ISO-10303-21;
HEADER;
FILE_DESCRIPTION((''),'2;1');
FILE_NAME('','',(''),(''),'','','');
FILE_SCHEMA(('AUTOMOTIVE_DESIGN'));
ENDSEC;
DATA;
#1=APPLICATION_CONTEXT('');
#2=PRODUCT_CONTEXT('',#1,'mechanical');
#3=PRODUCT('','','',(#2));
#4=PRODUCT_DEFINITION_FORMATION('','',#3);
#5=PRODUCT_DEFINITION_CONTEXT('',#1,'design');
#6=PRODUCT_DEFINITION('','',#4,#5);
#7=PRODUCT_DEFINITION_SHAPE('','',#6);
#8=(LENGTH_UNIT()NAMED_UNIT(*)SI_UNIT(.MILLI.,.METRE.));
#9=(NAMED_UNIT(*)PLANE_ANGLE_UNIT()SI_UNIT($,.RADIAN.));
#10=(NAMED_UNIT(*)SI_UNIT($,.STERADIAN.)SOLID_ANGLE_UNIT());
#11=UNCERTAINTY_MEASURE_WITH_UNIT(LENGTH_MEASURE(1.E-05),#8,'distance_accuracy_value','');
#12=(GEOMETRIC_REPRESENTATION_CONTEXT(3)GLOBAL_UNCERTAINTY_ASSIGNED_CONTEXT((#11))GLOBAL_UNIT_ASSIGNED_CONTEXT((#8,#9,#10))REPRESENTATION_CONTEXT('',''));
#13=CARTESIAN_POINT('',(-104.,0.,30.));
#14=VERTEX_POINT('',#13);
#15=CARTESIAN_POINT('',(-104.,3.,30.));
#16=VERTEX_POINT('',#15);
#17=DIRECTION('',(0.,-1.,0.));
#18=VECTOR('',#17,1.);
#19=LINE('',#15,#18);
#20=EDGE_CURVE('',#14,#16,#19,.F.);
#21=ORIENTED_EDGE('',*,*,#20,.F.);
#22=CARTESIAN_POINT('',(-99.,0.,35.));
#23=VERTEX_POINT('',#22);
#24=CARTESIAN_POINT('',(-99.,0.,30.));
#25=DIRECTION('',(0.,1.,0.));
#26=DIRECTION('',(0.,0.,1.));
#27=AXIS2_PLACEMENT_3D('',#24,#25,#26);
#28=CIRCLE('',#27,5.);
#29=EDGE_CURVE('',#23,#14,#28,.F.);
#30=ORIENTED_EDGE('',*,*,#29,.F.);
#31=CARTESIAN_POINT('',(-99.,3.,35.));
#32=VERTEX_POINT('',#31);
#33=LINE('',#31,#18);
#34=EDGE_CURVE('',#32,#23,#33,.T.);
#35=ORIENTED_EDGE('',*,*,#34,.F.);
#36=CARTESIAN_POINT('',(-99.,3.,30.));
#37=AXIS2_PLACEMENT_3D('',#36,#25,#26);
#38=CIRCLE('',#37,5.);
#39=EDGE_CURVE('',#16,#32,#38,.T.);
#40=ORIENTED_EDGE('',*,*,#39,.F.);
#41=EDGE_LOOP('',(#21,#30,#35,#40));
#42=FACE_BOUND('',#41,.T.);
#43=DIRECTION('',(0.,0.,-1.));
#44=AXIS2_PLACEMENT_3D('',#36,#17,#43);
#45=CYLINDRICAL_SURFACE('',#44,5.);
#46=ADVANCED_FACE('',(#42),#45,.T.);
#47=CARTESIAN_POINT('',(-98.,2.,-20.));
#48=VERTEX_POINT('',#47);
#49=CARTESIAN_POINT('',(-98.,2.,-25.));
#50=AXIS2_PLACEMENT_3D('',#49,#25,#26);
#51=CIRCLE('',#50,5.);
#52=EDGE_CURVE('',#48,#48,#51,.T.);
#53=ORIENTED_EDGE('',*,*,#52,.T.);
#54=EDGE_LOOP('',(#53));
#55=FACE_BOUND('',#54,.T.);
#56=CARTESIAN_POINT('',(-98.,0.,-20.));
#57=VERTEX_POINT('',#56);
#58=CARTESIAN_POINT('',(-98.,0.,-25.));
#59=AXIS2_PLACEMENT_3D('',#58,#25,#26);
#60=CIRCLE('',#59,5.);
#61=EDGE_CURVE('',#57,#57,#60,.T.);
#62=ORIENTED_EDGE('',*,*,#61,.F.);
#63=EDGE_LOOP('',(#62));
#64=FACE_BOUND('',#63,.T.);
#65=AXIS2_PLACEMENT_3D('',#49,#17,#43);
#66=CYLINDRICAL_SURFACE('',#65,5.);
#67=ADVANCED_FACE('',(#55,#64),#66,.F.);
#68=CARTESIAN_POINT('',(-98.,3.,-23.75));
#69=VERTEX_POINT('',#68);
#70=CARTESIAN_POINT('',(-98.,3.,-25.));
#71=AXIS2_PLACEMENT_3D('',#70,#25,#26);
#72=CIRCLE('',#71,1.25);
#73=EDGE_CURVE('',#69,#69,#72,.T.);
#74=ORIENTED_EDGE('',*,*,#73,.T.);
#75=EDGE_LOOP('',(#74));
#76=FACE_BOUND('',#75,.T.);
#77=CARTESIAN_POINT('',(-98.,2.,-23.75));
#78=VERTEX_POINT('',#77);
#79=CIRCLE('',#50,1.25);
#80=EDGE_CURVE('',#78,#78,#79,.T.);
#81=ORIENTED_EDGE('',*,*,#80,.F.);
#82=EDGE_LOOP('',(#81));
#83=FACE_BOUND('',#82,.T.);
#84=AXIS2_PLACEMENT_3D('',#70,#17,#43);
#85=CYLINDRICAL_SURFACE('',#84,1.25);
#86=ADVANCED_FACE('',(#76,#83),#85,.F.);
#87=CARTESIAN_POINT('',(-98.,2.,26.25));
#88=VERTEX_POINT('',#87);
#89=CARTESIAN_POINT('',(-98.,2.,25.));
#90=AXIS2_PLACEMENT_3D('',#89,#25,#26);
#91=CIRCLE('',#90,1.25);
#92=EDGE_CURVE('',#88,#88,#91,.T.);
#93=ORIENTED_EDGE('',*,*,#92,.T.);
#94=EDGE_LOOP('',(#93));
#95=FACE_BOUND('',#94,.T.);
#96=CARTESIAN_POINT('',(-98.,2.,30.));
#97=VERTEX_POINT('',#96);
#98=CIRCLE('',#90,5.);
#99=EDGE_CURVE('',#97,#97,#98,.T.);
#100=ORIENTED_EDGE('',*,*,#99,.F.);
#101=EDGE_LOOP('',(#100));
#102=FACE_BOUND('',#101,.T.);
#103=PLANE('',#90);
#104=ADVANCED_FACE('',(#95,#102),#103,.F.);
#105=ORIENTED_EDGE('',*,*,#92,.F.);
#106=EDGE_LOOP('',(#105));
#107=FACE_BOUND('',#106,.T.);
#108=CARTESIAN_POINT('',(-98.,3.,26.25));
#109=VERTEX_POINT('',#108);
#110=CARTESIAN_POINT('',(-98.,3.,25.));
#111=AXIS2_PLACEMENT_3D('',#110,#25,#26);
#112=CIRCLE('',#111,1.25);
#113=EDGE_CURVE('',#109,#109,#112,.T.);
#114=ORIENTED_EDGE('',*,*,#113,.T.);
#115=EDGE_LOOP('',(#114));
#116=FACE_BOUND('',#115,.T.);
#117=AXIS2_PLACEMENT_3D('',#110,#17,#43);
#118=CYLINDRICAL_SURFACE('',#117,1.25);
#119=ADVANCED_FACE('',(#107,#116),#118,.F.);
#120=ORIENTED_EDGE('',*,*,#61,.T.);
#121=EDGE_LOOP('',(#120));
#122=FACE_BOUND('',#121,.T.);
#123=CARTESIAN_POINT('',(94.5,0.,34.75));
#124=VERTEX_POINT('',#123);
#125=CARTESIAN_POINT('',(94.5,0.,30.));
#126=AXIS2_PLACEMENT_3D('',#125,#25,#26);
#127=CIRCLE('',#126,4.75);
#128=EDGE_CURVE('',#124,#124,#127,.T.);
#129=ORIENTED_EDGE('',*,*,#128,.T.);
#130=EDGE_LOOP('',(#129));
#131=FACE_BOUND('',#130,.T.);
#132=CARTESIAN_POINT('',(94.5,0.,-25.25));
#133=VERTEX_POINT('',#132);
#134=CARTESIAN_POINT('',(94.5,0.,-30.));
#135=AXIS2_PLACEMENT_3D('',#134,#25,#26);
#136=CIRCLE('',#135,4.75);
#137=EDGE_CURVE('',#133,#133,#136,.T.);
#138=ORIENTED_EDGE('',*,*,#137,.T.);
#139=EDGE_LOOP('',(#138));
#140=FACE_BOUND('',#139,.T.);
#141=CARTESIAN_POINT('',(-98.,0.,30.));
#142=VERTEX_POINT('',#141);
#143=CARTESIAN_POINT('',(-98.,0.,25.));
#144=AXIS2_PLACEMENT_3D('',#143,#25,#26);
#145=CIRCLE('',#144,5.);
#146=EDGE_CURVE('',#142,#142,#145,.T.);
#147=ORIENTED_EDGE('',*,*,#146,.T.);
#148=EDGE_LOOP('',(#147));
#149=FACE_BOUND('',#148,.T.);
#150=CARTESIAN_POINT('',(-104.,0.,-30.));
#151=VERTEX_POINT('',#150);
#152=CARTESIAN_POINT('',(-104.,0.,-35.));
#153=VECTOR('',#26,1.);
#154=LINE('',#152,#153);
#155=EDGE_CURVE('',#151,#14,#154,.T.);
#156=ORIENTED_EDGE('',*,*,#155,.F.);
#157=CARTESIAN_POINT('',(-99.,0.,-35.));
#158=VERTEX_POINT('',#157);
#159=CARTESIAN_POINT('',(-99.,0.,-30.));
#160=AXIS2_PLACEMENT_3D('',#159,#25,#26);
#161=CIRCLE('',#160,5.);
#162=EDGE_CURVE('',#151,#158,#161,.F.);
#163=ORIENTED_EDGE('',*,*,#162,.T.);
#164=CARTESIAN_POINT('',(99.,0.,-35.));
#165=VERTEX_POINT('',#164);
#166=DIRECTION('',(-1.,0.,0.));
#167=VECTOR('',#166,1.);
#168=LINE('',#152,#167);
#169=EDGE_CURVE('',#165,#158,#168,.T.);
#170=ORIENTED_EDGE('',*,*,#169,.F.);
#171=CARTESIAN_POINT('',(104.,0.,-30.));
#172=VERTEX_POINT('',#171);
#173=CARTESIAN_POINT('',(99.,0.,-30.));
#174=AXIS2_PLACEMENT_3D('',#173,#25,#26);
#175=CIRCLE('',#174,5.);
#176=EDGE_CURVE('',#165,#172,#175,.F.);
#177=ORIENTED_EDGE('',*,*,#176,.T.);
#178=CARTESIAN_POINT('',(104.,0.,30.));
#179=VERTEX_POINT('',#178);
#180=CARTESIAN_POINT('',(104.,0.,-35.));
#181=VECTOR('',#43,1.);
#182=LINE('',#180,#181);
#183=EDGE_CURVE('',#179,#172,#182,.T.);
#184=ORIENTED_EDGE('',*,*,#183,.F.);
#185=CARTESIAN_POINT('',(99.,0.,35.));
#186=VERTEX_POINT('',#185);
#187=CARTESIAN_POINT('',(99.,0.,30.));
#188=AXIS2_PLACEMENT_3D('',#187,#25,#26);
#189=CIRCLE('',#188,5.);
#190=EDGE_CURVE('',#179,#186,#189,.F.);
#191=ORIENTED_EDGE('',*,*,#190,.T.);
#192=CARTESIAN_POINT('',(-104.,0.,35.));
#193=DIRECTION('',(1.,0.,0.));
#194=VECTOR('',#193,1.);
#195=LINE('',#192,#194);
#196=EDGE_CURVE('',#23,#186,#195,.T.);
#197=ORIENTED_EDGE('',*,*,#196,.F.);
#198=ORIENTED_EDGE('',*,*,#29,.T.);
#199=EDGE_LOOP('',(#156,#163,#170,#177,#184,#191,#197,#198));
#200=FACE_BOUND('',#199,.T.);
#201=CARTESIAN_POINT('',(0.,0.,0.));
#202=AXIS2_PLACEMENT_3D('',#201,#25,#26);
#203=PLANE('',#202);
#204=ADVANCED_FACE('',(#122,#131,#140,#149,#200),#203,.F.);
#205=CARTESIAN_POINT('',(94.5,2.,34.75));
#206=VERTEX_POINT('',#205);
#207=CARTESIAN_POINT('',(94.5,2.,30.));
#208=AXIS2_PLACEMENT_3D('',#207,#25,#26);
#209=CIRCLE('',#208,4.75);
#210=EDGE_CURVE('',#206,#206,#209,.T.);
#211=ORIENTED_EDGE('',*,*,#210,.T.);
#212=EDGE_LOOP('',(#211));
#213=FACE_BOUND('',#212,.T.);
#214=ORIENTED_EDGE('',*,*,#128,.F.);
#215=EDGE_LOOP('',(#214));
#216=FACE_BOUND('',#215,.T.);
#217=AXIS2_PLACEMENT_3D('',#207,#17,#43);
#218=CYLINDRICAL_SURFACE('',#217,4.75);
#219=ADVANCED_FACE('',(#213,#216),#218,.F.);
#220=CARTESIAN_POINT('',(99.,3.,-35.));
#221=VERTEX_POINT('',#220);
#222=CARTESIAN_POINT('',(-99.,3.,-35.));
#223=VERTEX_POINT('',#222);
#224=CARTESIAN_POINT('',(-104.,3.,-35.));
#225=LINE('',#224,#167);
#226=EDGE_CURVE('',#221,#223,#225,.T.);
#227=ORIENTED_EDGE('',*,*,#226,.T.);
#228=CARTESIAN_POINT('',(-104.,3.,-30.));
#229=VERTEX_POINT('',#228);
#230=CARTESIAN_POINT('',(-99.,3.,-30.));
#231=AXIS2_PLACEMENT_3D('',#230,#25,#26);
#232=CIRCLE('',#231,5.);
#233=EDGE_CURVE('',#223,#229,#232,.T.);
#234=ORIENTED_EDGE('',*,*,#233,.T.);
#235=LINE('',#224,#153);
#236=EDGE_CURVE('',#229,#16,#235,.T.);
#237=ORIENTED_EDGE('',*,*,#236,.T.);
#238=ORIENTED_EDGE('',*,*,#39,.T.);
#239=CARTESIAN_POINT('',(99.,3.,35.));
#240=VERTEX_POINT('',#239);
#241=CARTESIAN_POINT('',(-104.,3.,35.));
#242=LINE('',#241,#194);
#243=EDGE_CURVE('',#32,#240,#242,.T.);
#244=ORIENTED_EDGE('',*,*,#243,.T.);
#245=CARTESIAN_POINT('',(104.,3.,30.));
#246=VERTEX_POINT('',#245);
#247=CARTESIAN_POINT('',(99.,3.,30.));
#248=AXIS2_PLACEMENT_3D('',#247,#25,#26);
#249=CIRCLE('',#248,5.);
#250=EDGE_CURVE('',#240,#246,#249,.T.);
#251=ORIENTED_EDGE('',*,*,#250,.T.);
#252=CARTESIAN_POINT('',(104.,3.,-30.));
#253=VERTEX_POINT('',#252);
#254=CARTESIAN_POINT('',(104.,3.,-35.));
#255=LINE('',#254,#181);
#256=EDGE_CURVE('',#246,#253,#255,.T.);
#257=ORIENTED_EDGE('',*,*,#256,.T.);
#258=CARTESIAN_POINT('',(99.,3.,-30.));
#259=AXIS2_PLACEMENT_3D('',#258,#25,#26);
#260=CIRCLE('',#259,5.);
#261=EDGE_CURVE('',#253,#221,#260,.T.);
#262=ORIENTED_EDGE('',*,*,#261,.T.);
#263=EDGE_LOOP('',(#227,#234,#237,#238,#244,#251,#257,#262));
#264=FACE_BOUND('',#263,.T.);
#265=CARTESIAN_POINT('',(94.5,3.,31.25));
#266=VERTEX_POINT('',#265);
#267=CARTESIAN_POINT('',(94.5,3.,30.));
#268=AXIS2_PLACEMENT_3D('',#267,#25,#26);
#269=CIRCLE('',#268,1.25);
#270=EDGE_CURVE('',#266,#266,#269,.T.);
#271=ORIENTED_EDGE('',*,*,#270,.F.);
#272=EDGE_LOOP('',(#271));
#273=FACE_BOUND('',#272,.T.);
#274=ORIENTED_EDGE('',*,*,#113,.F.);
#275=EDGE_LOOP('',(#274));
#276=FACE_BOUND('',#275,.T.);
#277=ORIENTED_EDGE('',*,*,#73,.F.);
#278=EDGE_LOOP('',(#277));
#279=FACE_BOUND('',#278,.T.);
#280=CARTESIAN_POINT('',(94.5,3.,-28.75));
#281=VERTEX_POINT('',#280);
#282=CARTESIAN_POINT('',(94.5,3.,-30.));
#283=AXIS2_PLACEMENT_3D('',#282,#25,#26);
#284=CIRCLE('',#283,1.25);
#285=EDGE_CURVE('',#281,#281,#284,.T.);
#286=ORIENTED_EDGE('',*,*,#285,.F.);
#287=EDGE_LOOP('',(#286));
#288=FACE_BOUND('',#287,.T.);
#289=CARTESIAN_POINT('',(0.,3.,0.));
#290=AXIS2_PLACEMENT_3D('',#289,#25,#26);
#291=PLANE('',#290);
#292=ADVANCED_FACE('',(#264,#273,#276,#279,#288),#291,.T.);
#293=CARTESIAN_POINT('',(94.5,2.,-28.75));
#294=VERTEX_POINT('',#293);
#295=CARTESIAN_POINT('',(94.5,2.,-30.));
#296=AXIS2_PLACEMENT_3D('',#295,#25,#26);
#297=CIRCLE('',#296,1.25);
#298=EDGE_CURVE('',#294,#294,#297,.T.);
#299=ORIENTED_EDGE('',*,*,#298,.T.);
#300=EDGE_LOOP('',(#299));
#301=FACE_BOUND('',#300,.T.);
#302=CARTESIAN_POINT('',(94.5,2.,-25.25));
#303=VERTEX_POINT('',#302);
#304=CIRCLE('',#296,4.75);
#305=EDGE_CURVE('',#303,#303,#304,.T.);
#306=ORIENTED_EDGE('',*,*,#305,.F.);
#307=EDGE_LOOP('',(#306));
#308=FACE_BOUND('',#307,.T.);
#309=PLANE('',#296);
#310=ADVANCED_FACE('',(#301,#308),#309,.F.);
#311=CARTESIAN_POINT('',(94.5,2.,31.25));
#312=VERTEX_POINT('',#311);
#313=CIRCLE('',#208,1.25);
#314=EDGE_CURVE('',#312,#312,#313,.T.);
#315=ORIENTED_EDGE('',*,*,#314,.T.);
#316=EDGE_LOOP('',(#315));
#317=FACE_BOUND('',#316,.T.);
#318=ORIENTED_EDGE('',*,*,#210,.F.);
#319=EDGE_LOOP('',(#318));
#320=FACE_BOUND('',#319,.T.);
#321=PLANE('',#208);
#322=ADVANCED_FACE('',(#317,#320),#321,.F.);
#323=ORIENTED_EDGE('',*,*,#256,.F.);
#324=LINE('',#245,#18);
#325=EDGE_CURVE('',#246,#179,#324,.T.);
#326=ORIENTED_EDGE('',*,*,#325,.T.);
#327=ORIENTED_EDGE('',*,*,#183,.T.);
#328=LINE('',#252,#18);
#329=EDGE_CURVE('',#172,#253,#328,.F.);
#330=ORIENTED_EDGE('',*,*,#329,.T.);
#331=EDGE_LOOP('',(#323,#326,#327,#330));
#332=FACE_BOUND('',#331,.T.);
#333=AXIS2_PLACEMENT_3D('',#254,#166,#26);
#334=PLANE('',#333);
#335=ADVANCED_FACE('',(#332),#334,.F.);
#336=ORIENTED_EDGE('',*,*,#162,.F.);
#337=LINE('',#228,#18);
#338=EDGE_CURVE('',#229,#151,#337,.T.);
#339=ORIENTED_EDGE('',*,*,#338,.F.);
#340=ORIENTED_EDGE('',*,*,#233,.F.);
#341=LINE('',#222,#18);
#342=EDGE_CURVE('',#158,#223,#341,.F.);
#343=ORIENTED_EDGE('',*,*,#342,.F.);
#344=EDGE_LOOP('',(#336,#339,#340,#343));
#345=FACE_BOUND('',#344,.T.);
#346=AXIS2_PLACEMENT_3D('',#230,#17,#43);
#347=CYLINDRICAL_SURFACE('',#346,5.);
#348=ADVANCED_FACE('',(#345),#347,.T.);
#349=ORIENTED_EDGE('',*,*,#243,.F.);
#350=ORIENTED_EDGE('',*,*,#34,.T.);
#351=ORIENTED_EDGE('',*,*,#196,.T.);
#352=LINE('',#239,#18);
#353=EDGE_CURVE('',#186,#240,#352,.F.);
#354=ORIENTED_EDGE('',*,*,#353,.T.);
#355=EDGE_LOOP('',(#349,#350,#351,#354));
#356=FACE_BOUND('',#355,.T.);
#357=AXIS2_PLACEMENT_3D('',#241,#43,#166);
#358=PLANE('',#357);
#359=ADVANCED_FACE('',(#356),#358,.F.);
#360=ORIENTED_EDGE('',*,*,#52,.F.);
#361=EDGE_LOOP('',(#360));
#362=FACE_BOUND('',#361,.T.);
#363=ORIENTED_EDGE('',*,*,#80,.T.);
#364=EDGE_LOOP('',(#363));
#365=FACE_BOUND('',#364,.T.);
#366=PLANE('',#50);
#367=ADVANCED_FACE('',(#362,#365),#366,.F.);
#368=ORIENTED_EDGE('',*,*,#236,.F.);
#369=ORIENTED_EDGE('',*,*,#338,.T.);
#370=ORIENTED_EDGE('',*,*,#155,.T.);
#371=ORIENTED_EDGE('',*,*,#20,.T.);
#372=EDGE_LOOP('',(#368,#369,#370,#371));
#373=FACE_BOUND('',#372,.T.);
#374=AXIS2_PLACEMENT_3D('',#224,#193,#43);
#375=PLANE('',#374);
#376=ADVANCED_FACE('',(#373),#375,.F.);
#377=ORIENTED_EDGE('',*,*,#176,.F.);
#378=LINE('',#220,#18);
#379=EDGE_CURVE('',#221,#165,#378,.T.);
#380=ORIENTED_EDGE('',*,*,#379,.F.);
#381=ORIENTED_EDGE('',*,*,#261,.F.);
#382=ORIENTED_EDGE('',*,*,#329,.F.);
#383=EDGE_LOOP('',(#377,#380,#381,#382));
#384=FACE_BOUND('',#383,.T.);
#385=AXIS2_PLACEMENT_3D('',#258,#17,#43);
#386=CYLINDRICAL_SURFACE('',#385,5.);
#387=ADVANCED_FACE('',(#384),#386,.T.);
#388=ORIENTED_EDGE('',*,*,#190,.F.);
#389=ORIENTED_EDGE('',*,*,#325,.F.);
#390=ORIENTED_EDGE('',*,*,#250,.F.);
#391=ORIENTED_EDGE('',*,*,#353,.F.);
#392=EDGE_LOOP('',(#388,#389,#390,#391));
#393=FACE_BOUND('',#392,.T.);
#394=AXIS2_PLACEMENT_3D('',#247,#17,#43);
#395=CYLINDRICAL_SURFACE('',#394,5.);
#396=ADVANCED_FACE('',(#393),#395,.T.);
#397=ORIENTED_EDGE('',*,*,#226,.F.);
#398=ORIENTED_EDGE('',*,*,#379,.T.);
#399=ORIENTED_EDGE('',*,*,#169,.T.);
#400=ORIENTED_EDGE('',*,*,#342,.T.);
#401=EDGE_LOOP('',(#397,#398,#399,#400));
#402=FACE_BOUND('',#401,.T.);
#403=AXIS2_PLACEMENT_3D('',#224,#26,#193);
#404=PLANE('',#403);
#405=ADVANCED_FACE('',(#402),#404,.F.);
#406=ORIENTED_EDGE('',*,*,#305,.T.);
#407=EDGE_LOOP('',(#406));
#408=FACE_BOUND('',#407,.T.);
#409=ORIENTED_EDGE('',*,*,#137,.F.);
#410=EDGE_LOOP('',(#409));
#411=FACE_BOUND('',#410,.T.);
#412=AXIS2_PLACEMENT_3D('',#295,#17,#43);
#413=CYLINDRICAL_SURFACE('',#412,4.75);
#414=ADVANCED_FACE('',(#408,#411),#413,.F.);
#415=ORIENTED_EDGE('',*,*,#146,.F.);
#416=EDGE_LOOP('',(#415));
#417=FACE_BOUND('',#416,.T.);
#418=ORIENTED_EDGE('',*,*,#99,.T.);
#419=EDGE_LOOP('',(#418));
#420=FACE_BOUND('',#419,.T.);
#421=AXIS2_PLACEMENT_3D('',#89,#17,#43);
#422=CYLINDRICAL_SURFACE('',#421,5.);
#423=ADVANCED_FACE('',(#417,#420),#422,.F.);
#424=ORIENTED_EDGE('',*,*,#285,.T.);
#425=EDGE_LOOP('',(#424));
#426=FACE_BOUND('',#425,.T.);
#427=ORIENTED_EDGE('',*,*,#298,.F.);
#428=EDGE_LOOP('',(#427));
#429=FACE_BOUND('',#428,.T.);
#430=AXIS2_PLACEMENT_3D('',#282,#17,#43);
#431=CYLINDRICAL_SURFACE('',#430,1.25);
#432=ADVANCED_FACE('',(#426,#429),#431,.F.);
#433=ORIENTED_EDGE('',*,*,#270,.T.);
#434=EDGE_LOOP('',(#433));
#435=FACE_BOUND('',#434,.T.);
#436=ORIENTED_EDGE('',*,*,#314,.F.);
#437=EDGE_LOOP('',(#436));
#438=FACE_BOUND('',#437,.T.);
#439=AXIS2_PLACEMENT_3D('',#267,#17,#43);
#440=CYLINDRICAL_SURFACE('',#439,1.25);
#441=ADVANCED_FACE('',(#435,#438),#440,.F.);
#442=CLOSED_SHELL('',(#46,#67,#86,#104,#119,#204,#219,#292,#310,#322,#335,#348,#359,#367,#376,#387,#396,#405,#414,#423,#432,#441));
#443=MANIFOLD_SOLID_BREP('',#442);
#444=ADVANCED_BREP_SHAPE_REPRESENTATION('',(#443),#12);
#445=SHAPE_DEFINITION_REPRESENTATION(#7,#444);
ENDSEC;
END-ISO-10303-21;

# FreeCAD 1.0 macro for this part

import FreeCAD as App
import Part
import Sketcher


def edges_at(feature, points):
    """Names of the edges that pass closest to the given points."""
    edges = feature.Shape.Edges
    near = lambda p: min(range(len(edges)), key=lambda i: edges[i].distToShape(Part.Vertex(*p))[0])
    return sorted({f"Edge{near(p) + 1}" for p in points})

doc = App.newDocument("Part")
params = doc.addObject("Spreadsheet::Sheet", "Params")
for row, (alias, value) in enumerate([
    ("sketch1_diameter", "2.5 mm"),
    ("sketch1_width", "208 mm"),
    ("sketch1_height", "70 mm"),
    ("pad1_length", "3 mm"),
    ("fillet_radius", "5 mm"),
    ("sketch2_diameter", "10 mm"),
    ("sketch2_diameter2", "9.5 mm"),
    ("pocket1_length", "2 mm"),
], start=1):
    params.set(f"A{row}", alias)
    params.set(f"B{row}", "=" + value)
    params.setAlias(f"B{row}", alias)

body = doc.addObject("PartDesign::Body", "Body")

# Sketch on XZ plane
sketch1 = body.newObject("Sketcher::SketchObject", "Sketch")
sketch1.AttachmentSupport = (doc.getObject("XZ_Plane"), [""])
sketch1.MapMode = "FlatFace"
sketch1.addGeometry([
    Part.LineSegment(App.Vector(-104, -35, 0), App.Vector(-104, 35, 0)),  # 0
    Part.LineSegment(App.Vector(-104, 35, 0), App.Vector(104, 35, 0)),  # 1
    Part.LineSegment(App.Vector(104, 35, 0), App.Vector(104, -35, 0)),  # 2
    Part.LineSegment(App.Vector(104, -35, 0), App.Vector(-104, -35, 0)),  # 3
    Part.Circle(App.Vector(-98, 25, 0), App.Vector(0, 0, 1), 1.25),  # 4
    Part.Circle(App.Vector(94.5, 30, 0), App.Vector(0, 0, 1), 1.25),  # 5
    Part.Circle(App.Vector(-98, -25, 0), App.Vector(0, 0, 1), 1.25),  # 6
    Part.Circle(App.Vector(94.5, -30, 0), App.Vector(0, 0, 1), 1.25),  # 7
], False)
sketch1.addConstraint([
    Sketcher.Constraint("Coincident", 0, 2, 1, 1),
    Sketcher.Constraint("Coincident", 1, 2, 2, 1),
    Sketcher.Constraint("Coincident", 2, 2, 3, 1),
    Sketcher.Constraint("Coincident", 3, 2, 0, 1),
    Sketcher.Constraint("Vertical", 0),
    Sketcher.Constraint("Horizontal", 1),
    Sketcher.Constraint("Vertical", 2),
    Sketcher.Constraint("Horizontal", 3),
    Sketcher.Constraint("Equal", 4, 5),
    Sketcher.Constraint("Equal", 5, 6),
    Sketcher.Constraint("Equal", 6, 7),
    Sketcher.Constraint("Symmetric", 0, 2, 2, 2, -1, 1),
    Sketcher.Constraint("Symmetric", 4, 3, 6, 3, -1),
    Sketcher.Constraint("Symmetric", 5, 3, 7, 3, -1),
    Sketcher.Constraint("Diameter", 4, 2.5),
    Sketcher.Constraint("DistanceX", 1, 1, 1, 2, 208.0),
    Sketcher.Constraint("DistanceY", 0, 1, 0, 2, 70.0),
    Sketcher.Constraint("DistanceX", 4, 3, -1, 1, 98.0),
    Sketcher.Constraint("DistanceY", -1, 1, 4, 3, 25.0),
    Sketcher.Constraint("DistanceY", -1, 1, 5, 3, 30.0),
    Sketcher.Constraint("DistanceX", -1, 1, 5, 3, 94.5),
])
sketch1.setExpression("Constraints[14]", "Params.sketch1_diameter")
sketch1.setExpression("Constraints[15]", "Params.sketch1_width")
sketch1.setExpression("Constraints[16]", "Params.sketch1_height")
pad1 = body.newObject("PartDesign::Pad", "Pad")
pad1.Profile = sketch1
pad1.setExpression("Length", "Params.pad1_length")
pad1.Reversed = True
doc.recompute()

fillet = body.newObject("PartDesign::Fillet", "Fillet")
fillet.Base = (pad1, edges_at(pad1, [
    (104, 1.5, 35),
    (-104, 1.5, 35),
    (-104, 1.5, -35),
    (104, 1.5, -35),
]))
fillet.setExpression("Radius", "Params.fillet_radius")

# Sketch on XZ plane
sketch2 = body.newObject("Sketcher::SketchObject", "Sketch001")
sketch2.AttachmentSupport = (doc.getObject("XZ_Plane"), [""])
sketch2.MapMode = "FlatFace"
sketch2.addGeometry([
    Part.Circle(App.Vector(-98, -25, 0), App.Vector(0, 0, 1), 5),
    Part.Circle(App.Vector(94.5, -30, 0), App.Vector(0, 0, 1), 4.75),
    Part.Circle(App.Vector(94.5, 30, 0), App.Vector(0, 0, 1), 4.75),
    Part.Circle(App.Vector(-98, 25, 0), App.Vector(0, 0, 1), 5),
], False)
sketch2.addConstraint([
    Sketcher.Constraint("Equal", 1, 2),
    Sketcher.Constraint("Equal", 0, 3),
    Sketcher.Constraint("Symmetric", 1, 3, 2, 3, -1),
    Sketcher.Constraint("Symmetric", 0, 3, 3, 3, -1),
    Sketcher.Constraint("Diameter", 0, 10.0),
    Sketcher.Constraint("Diameter", 1, 9.5),
    Sketcher.Constraint("DistanceX", 0, 3, -1, 1, 98.0),
    Sketcher.Constraint("DistanceY", 0, 3, -1, 1, 25.0),
    Sketcher.Constraint("DistanceY", 1, 3, -1, 1, 30.0),
    Sketcher.Constraint("DistanceX", -1, 1, 1, 3, 94.5),
])
sketch2.setExpression("Constraints[4]", "Params.sketch2_diameter")
sketch2.setExpression("Constraints[5]", "Params.sketch2_diameter2")
pocket1 = body.newObject("PartDesign::Pocket", "Pocket")
pocket1.Profile = sketch2
pocket1.setExpression("Length", "Params.pocket1_length")

doc.recompute()
